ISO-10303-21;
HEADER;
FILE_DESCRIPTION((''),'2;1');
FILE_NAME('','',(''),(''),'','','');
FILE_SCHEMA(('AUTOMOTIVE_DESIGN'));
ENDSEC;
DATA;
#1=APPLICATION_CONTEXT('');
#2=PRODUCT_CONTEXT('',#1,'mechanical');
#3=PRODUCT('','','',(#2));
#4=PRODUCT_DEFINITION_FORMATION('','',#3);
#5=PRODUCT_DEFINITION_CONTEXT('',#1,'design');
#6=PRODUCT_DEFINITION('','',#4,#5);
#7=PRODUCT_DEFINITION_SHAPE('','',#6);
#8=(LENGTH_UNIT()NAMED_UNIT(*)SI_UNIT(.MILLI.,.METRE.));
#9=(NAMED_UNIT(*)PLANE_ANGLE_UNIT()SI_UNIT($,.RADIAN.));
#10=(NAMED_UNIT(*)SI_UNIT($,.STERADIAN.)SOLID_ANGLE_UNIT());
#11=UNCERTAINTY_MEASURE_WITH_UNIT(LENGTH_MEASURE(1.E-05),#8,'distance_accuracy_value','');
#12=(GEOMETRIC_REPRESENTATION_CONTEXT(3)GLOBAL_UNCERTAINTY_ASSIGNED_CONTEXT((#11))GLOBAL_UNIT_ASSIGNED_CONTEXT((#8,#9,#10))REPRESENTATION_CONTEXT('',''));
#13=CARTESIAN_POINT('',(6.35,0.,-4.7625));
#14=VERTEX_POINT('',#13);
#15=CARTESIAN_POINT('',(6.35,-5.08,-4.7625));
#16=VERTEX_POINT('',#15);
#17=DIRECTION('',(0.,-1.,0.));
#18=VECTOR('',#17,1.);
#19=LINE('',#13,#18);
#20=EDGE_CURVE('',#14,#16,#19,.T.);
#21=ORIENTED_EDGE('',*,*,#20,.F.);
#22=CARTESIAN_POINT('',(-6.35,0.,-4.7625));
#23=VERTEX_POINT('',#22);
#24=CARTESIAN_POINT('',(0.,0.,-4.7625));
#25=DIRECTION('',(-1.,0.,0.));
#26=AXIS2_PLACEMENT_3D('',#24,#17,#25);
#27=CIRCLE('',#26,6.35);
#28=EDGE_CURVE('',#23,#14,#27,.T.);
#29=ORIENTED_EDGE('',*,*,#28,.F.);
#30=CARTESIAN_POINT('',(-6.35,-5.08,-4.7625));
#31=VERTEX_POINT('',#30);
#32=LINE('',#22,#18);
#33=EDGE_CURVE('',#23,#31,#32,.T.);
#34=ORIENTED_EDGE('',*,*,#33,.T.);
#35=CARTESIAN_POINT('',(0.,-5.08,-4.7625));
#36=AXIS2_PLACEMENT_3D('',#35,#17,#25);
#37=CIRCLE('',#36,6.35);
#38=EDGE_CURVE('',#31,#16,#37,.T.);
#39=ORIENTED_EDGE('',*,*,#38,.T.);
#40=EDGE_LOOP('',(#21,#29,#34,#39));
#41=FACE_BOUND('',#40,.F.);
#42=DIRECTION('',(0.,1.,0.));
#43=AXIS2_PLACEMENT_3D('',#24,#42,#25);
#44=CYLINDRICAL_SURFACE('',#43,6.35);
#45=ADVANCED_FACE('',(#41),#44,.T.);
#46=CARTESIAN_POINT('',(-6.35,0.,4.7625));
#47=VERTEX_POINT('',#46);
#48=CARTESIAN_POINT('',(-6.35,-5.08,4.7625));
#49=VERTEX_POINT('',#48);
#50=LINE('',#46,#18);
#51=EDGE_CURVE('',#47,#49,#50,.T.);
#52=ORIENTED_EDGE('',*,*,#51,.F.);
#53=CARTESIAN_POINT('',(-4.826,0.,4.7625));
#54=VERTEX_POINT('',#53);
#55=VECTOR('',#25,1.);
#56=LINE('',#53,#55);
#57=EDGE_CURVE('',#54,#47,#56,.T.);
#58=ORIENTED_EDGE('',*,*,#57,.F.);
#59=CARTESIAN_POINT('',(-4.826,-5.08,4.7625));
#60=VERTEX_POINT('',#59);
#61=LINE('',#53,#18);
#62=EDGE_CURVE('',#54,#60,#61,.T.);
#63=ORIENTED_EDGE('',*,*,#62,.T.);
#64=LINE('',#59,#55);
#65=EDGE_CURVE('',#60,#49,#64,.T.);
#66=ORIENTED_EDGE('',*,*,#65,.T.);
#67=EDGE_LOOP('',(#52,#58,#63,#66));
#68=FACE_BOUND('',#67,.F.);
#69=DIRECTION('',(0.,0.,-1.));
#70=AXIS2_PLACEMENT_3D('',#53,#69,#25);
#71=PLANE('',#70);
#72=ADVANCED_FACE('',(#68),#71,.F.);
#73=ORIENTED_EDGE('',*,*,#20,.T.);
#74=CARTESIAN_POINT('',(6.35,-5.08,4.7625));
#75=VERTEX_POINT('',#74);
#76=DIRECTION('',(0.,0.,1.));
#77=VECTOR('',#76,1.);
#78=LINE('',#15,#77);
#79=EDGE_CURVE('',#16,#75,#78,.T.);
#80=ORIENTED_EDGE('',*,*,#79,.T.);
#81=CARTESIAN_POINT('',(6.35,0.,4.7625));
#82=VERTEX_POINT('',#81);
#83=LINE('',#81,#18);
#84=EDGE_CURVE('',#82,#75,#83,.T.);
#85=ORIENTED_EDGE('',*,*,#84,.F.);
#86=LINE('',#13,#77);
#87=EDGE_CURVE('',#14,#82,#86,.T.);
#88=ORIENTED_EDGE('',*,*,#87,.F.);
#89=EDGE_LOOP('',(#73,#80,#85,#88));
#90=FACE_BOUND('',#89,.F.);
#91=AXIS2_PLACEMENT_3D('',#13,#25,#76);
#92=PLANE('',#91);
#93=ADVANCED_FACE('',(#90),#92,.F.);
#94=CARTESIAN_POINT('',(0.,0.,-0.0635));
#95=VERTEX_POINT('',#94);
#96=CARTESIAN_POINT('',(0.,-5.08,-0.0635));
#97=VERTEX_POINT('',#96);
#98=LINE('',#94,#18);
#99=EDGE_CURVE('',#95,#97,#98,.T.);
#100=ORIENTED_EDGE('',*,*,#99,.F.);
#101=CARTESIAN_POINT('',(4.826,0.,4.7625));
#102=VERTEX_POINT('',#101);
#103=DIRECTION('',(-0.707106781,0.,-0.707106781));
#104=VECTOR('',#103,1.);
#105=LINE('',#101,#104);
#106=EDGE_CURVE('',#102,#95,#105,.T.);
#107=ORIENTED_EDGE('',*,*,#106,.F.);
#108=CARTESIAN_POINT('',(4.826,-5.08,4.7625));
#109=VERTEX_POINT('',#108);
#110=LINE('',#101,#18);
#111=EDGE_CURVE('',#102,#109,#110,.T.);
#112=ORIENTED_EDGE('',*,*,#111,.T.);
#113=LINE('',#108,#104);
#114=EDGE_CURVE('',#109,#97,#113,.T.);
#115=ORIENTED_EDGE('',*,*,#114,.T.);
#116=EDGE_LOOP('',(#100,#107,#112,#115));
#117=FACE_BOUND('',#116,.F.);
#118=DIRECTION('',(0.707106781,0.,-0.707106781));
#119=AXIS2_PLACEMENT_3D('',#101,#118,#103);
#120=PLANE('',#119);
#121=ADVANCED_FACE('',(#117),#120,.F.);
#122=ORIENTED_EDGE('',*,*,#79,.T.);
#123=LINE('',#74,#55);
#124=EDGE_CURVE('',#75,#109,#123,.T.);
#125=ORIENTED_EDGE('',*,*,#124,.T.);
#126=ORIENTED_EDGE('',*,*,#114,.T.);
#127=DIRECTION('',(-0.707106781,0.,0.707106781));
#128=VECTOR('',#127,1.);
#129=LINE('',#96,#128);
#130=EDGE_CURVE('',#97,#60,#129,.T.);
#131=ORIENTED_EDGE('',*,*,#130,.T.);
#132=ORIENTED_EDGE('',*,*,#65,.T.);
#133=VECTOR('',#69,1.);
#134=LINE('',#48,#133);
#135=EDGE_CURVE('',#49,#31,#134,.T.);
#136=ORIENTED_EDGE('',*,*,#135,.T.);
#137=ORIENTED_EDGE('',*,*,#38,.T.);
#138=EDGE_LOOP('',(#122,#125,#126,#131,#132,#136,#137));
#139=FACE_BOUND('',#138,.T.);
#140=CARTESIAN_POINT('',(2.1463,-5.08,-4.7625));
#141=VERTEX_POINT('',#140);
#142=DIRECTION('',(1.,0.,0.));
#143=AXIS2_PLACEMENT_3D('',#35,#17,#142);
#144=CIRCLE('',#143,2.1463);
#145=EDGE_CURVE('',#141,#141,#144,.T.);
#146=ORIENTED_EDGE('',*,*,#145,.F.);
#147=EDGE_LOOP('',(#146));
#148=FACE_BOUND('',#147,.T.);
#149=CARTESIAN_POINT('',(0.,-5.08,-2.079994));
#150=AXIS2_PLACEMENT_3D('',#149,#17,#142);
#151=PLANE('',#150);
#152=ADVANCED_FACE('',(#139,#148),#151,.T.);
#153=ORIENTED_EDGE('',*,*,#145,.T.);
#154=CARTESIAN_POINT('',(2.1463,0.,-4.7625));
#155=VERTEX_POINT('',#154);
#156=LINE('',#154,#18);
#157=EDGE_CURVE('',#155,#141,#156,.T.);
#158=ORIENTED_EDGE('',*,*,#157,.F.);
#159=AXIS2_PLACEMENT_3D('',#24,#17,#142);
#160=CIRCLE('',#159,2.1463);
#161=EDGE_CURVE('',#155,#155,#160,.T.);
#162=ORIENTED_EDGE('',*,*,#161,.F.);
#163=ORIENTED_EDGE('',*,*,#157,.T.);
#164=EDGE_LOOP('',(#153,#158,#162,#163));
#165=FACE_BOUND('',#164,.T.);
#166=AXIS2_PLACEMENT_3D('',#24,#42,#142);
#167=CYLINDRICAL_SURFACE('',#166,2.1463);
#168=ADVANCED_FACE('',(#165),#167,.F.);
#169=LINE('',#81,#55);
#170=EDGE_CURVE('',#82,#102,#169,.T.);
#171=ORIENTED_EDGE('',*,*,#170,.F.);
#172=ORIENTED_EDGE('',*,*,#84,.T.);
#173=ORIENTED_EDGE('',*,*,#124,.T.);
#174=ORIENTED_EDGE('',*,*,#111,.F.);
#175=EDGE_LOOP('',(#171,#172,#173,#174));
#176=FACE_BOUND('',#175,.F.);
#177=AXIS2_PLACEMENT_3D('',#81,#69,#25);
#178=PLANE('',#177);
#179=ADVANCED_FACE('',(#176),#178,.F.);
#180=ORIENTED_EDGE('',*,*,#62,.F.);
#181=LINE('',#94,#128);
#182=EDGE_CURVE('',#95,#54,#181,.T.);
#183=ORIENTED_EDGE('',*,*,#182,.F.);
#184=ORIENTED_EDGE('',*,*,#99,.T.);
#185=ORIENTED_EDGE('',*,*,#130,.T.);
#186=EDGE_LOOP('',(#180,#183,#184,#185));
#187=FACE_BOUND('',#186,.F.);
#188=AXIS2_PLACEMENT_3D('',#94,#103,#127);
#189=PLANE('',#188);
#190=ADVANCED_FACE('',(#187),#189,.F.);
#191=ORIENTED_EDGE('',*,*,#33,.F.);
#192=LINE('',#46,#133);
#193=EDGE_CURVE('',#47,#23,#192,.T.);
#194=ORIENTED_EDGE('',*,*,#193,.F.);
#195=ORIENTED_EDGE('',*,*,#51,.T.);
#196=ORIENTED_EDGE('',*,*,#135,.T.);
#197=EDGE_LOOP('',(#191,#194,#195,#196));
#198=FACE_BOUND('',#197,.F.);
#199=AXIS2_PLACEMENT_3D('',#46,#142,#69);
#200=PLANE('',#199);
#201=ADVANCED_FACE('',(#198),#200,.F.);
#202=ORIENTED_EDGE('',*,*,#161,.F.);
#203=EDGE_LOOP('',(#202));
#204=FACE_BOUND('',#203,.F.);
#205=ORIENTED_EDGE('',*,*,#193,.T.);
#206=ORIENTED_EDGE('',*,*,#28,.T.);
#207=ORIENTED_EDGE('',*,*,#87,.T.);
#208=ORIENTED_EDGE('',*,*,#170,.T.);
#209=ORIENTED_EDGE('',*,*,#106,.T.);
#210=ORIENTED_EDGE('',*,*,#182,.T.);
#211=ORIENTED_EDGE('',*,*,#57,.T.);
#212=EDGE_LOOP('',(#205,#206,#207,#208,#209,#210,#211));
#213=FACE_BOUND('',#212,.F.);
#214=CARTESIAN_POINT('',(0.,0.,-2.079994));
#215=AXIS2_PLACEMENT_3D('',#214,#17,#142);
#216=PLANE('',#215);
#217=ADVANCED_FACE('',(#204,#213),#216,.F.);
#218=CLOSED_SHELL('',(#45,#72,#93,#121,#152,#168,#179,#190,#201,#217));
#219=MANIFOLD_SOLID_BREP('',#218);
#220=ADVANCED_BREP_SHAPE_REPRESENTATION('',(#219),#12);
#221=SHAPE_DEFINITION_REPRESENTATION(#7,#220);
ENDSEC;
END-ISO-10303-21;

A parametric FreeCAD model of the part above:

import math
import FreeCAD as App
import Part
import Sketcher
Q = App.Units.Quantity

doc = App.newDocument("Part")
body = doc.addObject("PartDesign::Body", "Body")

sketch1 = body.newObject("Sketcher::SketchObject", "Sketch")
sketch1.AttachmentSupport = (doc.getObject("XZ_Plane"), [""])
sketch1.MapMode = "FlatFace"
sketch1.addGeometry(Part.LineSegment(App.Vector(6.3, -4.8, 0), App.Vector(6.3, 4.8, 0)), False)
sketch1.addGeometry(Part.LineSegment(App.Vector(6.3, 4.8, 0), App.Vector(4.8, 4.8, 0)), False)
sketch1.addGeometry(Part.LineSegment(App.Vector(4.8, 4.8, 0), App.Vector(0, -0.1, 0)), False)
sketch1.addGeometry(Part.LineSegment(App.Vector(0, -0.1, 0), App.Vector(-4.8, 4.8, 0)), False)
sketch1.addGeometry(Part.LineSegment(App.Vector(-4.8, 4.8, 0), App.Vector(-6.3, 4.8, 0)), False)
sketch1.addGeometry(Part.LineSegment(App.Vector(-6.3, 4.8, 0), App.Vector(-6.3, -4.8, 0)), False)
sketch1.addGeometry(Part.ArcOfCircle(Part.Circle(App.Vector(0, -4.8, 0), App.Vector(0, 0, 1), 6.3), math.radians(180), math.radians(360)), False)
sketch1.addGeometry(Part.Circle(App.Vector(0, -4.8, 0), App.Vector(0, 0, 1), 2.1), False)
sketch1.addConstraint(Sketcher.Constraint("Coincident", 0, 2, 1, 1))
sketch1.addConstraint(Sketcher.Constraint("Coincident", 1, 2, 2, 1))
sketch1.addConstraint(Sketcher.Constraint("Coincident", 2, 2, 3, 1))
sketch1.addConstraint(Sketcher.Constraint("Coincident", 3, 2, 4, 1))
sketch1.addConstraint(Sketcher.Constraint("Coincident", 4, 2, 5, 1))
sketch1.addConstraint(Sketcher.Constraint("Tangent", 5, 2, 6, 1))
sketch1.addConstraint(Sketcher.Constraint("Tangent", 6, 2, 0, 1))
sketch1.addConstraint(Sketcher.Constraint("Vertical", 0))
sketch1.addConstraint(Sketcher.Constraint("Horizontal", 1))
sketch1.addConstraint(Sketcher.Constraint("Horizontal", 4))
sketch1.addConstraint(Sketcher.Constraint("Vertical", 5))
sketch1.addConstraint(Sketcher.Constraint("Coincident", 7, 3, 6, 3))
sketch1.addConstraint(Sketcher.Constraint("Symmetric", 0, 2, 5, 2, -1, 1))
sketch1.addConstraint(Sketcher.Constraint("Symmetric", 1, 2, 3, 2, -2))
sketch1.addConstraint(Sketcher.Constraint("PointOnObject", 2, 2, -2))
sketch1.addConstraint(Sketcher.Constraint("Perpendicular", 2, 3))
sketch1.addConstraint(Sketcher.Constraint("Radius", 6, Q("0.25 in")))
sketch1.addConstraint(Sketcher.Constraint("Diameter", 7, Q("0.169 in")))
sketch1.addConstraint(Sketcher.Constraint("DistanceX", 1, 2, 1, 1, Q("0.06 in")))
sketch1.addConstraint(Sketcher.Constraint("DistanceY", 0, 1, 0, 2, Q("0.375 in")))
pad1 = body.newObject("PartDesign::Pad", "Pad")
pad1.Profile = sketch1
pad1.Length = Q("0.2 in")

doc.recompute()
